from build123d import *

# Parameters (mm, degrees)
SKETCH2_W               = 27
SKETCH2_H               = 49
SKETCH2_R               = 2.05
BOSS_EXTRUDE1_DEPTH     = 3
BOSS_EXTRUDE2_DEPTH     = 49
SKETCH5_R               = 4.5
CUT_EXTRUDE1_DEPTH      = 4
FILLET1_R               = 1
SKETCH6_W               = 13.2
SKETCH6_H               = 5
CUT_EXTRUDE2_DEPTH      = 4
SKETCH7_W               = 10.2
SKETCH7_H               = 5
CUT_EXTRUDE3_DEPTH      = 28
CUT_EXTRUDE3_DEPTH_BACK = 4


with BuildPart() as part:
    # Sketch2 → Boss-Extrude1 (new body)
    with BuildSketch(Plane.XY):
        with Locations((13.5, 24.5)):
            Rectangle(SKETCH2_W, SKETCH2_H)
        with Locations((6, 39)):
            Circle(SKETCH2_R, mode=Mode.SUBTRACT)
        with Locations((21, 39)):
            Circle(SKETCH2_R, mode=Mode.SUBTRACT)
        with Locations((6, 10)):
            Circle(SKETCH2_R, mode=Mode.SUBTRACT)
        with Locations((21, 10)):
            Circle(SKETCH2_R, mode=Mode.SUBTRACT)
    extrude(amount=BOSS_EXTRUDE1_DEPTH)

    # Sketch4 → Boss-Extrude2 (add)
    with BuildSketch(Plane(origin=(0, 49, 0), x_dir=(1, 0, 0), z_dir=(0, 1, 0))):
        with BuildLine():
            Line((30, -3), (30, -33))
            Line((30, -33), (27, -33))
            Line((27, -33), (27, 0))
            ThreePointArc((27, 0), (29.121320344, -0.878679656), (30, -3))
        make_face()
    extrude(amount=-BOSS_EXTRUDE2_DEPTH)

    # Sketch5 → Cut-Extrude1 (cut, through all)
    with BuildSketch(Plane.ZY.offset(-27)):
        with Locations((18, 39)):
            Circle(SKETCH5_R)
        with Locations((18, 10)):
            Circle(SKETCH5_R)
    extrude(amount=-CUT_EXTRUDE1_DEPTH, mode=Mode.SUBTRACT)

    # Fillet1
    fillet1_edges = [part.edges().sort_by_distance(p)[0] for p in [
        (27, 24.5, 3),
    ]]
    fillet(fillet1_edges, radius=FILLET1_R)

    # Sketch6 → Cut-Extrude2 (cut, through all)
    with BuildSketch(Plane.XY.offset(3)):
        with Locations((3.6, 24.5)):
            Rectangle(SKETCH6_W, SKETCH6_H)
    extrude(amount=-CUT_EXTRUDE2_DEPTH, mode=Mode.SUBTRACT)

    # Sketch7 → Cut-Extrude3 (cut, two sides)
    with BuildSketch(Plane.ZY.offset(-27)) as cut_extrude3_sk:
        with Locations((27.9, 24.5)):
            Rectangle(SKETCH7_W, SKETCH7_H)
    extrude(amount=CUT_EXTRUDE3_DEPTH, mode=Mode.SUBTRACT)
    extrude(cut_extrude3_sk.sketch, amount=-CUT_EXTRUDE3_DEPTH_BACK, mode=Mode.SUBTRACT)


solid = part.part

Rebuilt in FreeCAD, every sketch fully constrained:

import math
import FreeCAD as App
import Part
import Sketcher


def edges_at(feature, points):
    """Names of the edges that pass closest to the given points."""
    edges = feature.Shape.Edges
    near = lambda p: min(range(len(edges)), key=lambda i: edges[i].distToShape(Part.Vertex(*p))[0])
    return sorted({f"Edge{near(p) + 1}" for p in points})


def add_polygon(sketch, points):
    """Adds a closed chain of lines whose ends are joined by coincident constraints."""
    first, n = sketch.GeometryCount, len(points)
    for a, b in zip(points, points[1:] + points[:1]):
        sketch.addGeometry(Part.LineSegment(App.Vector(*a, 0), App.Vector(*b, 0)), False)
    for i in range(n):
        sketch.addConstraint(Sketcher.Constraint("Coincident", first + i, 2, first + (i + 1) % n, 1))

doc = App.newDocument("Part")
body = doc.addObject("PartDesign::Body", "Body")

# Sketch on XY plane
sketch1 = body.newObject("Sketcher::SketchObject", "Sketch")
sketch1.AttachmentSupport = (doc.getObject("XY_Plane"), [""])
sketch1.MapMode = "FlatFace"
add_polygon(sketch1, [(0, 49), (0, 0), (27, 0), (27, 49)])  # lines 0-3
sketch1.addGeometry(Part.Circle(App.Vector(6, 10, 0), App.Vector(0, 0, 1), 2), False)  # 4
sketch1.addGeometry(Part.Circle(App.Vector(21, 10, 0), App.Vector(0, 0, 1), 2), False)  # 5
sketch1.addGeometry(Part.Circle(App.Vector(6, 39, 0), App.Vector(0, 0, 1), 2), False)  # 6
sketch1.addGeometry(Part.Circle(App.Vector(21, 39, 0), App.Vector(0, 0, 1), 2), False)  # 7
sketch1.addConstraint([
    Sketcher.Constraint("Vertical", 0),
    Sketcher.Constraint("Horizontal", 1),
    Sketcher.Constraint("Vertical", 2),
    Sketcher.Constraint("Horizontal", 3),
    Sketcher.Constraint("Coincident", 0, 2, -1, 1),
    Sketcher.Constraint("Equal", 4, 5),
    Sketcher.Constraint("Equal", 5, 6),
    Sketcher.Constraint("Equal", 6, 7),
    Sketcher.Constraint("Horizontal", 4, 3, 5, 3),
    Sketcher.Constraint("Horizontal", 6, 3, 7, 3),
    Sketcher.Constraint("Vertical", 4, 3, 6, 3),
    Sketcher.Constraint("Vertical", 5, 3, 7, 3),
    Sketcher.Constraint("Diameter", 4, 4.1),
    Sketcher.Constraint("DistanceX", 1, 1, 1, 2, 27.0),
    Sketcher.Constraint("DistanceY", 0, 2, 0, 1, 49.0),
    Sketcher.Constraint("DistanceX", -1, 1, 4, 3, 6.0),
    Sketcher.Constraint("DistanceY", -1, 1, 4, 3, 10.0),
    Sketcher.Constraint("DistanceX", -1, 1, 5, 3, 21.0),
    Sketcher.Constraint("DistanceY", -1, 1, 6, 3, 39.0),
])
pad1 = body.newObject("PartDesign::Pad", "Pad")
pad1.Profile = sketch1
pad1.Length = 3

# Sketch on XZ plane
sketch2 = body.newObject("Sketcher::SketchObject", "Sketch001")
sketch2.AttachmentSupport = (doc.getObject("XZ_Plane"), [""])
sketch2.MapMode = "FlatFace"
sketch2.AttachmentOffset = App.Placement(App.Vector(0, 0, -49), App.Rotation())
sketch2.addGeometry([
    Part.LineSegment(App.Vector(30, 33, 0), App.Vector(30, 3, 0)),
    Part.ArcOfCircle(Part.Circle(App.Vector(27, 3, 0), App.Vector(0, 0, 1), 3), math.radians(-90), math.radians(0)),
    Part.LineSegment(App.Vector(27, 0, 0), App.Vector(27, 33, 0)),
    Part.LineSegment(App.Vector(27, 33, 0), App.Vector(30, 33, 0)),
], False)
sketch2.addConstraint([
    Sketcher.Constraint("Tangent", 0, 2, 1, 2),
    Sketcher.Constraint("Coincident", 1, 1, 2, 1),
    Sketcher.Constraint("Coincident", 2, 2, 3, 1),
    Sketcher.Constraint("Coincident", 3, 2, 0, 1),
    Sketcher.Constraint("Vertical", 0),
    Sketcher.Constraint("Vertical", 2),
    Sketcher.Constraint("Horizontal", 3),
    Sketcher.Constraint("PointOnObject", 1, 1, -1),
    Sketcher.Constraint("Radius", 1, 3.0),
    Sketcher.Constraint("DistanceX", 3, 1, 3, 2, 3.0),
    Sketcher.Constraint("DistanceY", 0, 2, 0, 1, 30.0),
    Sketcher.Constraint("DistanceX", -1, 1, 1, 3, 27.0),
])
pad2 = body.newObject("PartDesign::Pad", "Pad001")
pad2.Profile = sketch2
pad2.Length = 49

# Sketch on YZ plane
sketch3 = body.newObject("Sketcher::SketchObject", "Sketch002")
sketch3.AttachmentSupport = (doc.getObject("YZ_Plane"), [""])
sketch3.MapMode = "FlatFace"
sketch3.AttachmentOffset = App.Placement(App.Vector(0, 0, 27), App.Rotation())
sketch3.addGeometry([
    Part.Circle(App.Vector(39, 18, 0), App.Vector(0, 0, 1), 4.5),
    Part.Circle(App.Vector(10, 18, 0), App.Vector(0, 0, 1), 4.5),
], False)
sketch3.addConstraint([
    Sketcher.Constraint("Equal", 0, 1),
    Sketcher.Constraint("Horizontal", 0, 3, 1, 3),
    Sketcher.Constraint("Diameter", 0, 9.0),
    Sketcher.Constraint("DistanceX", -1, 1, 0, 3, 39.0),
    Sketcher.Constraint("DistanceY", -1, 1, 0, 3, 18.0),
    Sketcher.Constraint("DistanceX", -1, 1, 1, 3, 10.0),
])
pocket1 = body.newObject("PartDesign::Pocket", "Pocket")
pocket1.Profile = sketch3
pocket1.Type = "ThroughAll"
pocket1.Reversed = True
doc.recompute()

fillet = body.newObject("PartDesign::Fillet", "Fillet")
fillet.Base = (pocket1, edges_at(pocket1, [(27, 24.5, 3)]))
fillet.Radius = 1

# Sketch on XY plane
sketch4 = body.newObject("Sketcher::SketchObject", "Sketch003")
sketch4.AttachmentSupport = (doc.getObject("XY_Plane"), [""])
sketch4.MapMode = "FlatFace"
sketch4.AttachmentOffset = App.Placement(App.Vector(0, 0, 3), App.Rotation())
add_polygon(sketch4, [(-3, 27), (-3, 22), (10, 22), (10, 27)])  # lines 0-3
sketch4.addConstraint([
    Sketcher.Constraint("Vertical", 0),
    Sketcher.Constraint("Horizontal", 1),
    Sketcher.Constraint("Vertical", 2),
    Sketcher.Constraint("Horizontal", 3),
    Sketcher.Constraint("DistanceY", 0, 2, 0, 1, 5.0),
    Sketcher.Constraint("DistanceX", 1, 1, 1, 2, 13.2),
    Sketcher.Constraint("DistanceX", 0, 2, -1, 1, 3.0),
    Sketcher.Constraint("DistanceY", -1, 1, 0, 2, 22.0),
])
pocket2 = body.newObject("PartDesign::Pocket", "Pocket001")
pocket2.Profile = sketch4
pocket2.Type = "ThroughAll"

# Sketch on YZ plane
sketch5 = body.newObject("Sketcher::SketchObject", "Sketch004")
sketch5.AttachmentSupport = (doc.getObject("YZ_Plane"), [""])
sketch5.MapMode = "FlatFace"
sketch5.AttachmentOffset = App.Placement(App.Vector(0, 0, 27), App.Rotation())
add_polygon(sketch5, [(27, 23), (22, 23), (22, 33), (27, 33)])  # lines 0-3
sketch5.addConstraint([
    Sketcher.Constraint("Horizontal", 0),
    Sketcher.Constraint("Vertical", 1),
    Sketcher.Constraint("Horizontal", 2),
    Sketcher.Constraint("Vertical", 3),
    Sketcher.Constraint("DistanceX", 0, 2, 0, 1, 5.0),
    Sketcher.Constraint("DistanceY", 1, 1, 1, 2, 10.2),
    Sketcher.Constraint("DistanceX", -1, 1, 0, 2, 22.0),
    Sketcher.Constraint("DistanceY", -1, 1, 1, 2, 33.0),
])
pocket3 = body.newObject("PartDesign::Pocket", "Pocket002")
pocket3.Profile = sketch5
pocket3.Type = "ThroughAll"
pocket3.Midplane = True

doc.recompute()
